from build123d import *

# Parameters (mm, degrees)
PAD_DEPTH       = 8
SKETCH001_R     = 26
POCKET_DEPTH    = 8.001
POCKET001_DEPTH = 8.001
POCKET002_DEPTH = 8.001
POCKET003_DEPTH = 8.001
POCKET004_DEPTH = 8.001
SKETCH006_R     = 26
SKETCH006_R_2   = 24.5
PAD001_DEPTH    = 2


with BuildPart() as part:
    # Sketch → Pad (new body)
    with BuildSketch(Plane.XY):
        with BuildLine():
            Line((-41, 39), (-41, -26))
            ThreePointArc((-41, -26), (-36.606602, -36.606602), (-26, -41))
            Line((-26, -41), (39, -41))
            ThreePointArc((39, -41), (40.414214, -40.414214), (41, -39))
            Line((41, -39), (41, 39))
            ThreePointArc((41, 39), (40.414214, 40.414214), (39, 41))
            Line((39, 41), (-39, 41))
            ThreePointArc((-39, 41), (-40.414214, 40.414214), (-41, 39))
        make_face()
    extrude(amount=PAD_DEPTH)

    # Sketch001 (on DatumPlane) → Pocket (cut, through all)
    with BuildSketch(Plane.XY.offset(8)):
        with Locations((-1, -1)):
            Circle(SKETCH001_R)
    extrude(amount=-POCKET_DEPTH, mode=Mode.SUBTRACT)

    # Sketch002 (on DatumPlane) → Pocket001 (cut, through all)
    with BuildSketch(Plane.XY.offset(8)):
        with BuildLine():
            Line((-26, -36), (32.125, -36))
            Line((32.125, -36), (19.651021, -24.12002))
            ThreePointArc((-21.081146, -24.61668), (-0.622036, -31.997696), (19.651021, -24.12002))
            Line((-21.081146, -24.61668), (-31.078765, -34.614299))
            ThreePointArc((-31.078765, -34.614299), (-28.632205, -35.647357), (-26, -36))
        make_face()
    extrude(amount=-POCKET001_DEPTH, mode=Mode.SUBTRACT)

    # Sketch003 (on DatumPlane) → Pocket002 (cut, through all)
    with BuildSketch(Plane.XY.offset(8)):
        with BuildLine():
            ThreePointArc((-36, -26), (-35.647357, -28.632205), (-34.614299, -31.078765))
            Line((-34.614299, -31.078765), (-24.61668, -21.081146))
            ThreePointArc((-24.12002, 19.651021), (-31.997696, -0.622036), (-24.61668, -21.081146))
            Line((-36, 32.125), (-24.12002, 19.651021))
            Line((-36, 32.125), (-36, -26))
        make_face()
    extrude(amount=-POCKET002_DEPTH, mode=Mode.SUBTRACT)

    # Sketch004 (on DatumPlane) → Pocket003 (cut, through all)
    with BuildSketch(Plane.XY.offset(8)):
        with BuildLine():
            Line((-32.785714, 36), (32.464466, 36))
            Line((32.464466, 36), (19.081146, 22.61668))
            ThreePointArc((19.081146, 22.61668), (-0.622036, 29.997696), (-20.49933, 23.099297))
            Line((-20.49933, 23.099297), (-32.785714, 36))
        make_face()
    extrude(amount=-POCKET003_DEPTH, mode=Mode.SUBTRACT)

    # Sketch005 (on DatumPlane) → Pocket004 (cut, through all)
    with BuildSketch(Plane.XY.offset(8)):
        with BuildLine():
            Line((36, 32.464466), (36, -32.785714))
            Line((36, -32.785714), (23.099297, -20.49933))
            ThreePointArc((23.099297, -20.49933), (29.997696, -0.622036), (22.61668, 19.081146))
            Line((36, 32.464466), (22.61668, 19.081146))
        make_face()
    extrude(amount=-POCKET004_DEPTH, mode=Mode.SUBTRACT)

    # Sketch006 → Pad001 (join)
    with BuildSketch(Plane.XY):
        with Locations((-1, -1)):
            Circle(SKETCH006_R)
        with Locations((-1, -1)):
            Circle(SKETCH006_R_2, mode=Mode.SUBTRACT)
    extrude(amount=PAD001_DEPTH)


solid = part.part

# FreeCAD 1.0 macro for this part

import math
import FreeCAD as App
import Part
import Sketcher

V = App.Vector
Q = App.Units.Quantity

doc = App.newDocument("Part")
params = doc.addObject("Spreadsheet::Sheet", "Params")
for row, (alias, value) in enumerate([
    ("sketch1_radius", "14.999999 mm"),
    ("sketch1_radius2", "1.999999 mm"),
    ("sketch1_width", "65 mm"),
    ("pad1_length", "8 mm"),
    ("sketch2_diameter", "52 mm"),
    ("sketch3_radius", "30.999999 mm"),
    ("sketch3_radius2", "10.000001 mm"),
    ("sketch4_radius", "10.000001 mm"),
    ("sketch4_radius2", "30.999999 mm"),
    ("sketch5_radius", "30.999999 mm"),
    ("sketch6_radius", "30.999999 mm"),
    ("sketch7_diameter", "52 mm"),
    ("sketch7_diameter2", "49 mm"),
    ("pad2_length", "2 mm"),
], start=1):
    params.set(f"A{row}", alias)
    params.set(f"B{row}", "=" + value)
    params.setAlias(f"B{row}", alias)

body = doc.addObject("PartDesign::Body", "Body")

# Sketch on XY plane
sketch1 = body.newObject("Sketcher::SketchObject", "Sketch")
sketch1.AttachmentSupport = (doc.getObject("XY_Plane"), [""])
sketch1.MapMode = "FlatFace"
sketch1.addGeometry(Part.LineSegment(V(-41, 39, 0), V(-41, -26, 0)), False)
sketch1.addGeometry(Part.ArcOfCircle(Part.Circle(V(-26, -26, 0), V(0, 0, 1), 15), math.radians(180), math.radians(270)), False)
sketch1.addGeometry(Part.LineSegment(V(-26, -41, 0), V(39, -41, 0)), False)
sketch1.addGeometry(Part.ArcOfCircle(Part.Circle(V(39, -39, 0), V(0, 0, 1), 2), math.radians(-90), math.radians(0)), False)
sketch1.addGeometry(Part.LineSegment(V(41, -39, 0), V(41, 39, 0)), False)
sketch1.addGeometry(Part.ArcOfCircle(Part.Circle(V(39, 39, 0), V(0, 0, 1), 2), math.radians(0), math.radians(90)), False)
sketch1.addGeometry(Part.LineSegment(V(39, 41, 0), V(-39, 41, 0)), False)
sketch1.addGeometry(Part.ArcOfCircle(Part.Circle(V(-39, 39, 0), V(0, 0, 1), 2), math.radians(90), math.radians(180)), False)
sketch1.addConstraint(Sketcher.Constraint("Tangent", 0, 2, 1, 1))
sketch1.addConstraint(Sketcher.Constraint("Tangent", 1, 2, 2, 1))
sketch1.addConstraint(Sketcher.Constraint("Tangent", 2, 2, 3, 1))
sketch1.addConstraint(Sketcher.Constraint("Tangent", 3, 2, 4, 1))
sketch1.addConstraint(Sketcher.Constraint("Tangent", 4, 2, 5, 1))
sketch1.addConstraint(Sketcher.Constraint("Tangent", 5, 2, 6, 1))
sketch1.addConstraint(Sketcher.Constraint("Tangent", 6, 2, 7, 1))
sketch1.addConstraint(Sketcher.Constraint("Tangent", 7, 2, 0, 1))
sketch1.addConstraint(Sketcher.Constraint("Vertical", 0))
sketch1.addConstraint(Sketcher.Constraint("Horizontal", 2))
sketch1.addConstraint(Sketcher.Constraint("Vertical", 4))
sketch1.addConstraint(Sketcher.Constraint("Horizontal", 6))
sketch1.addConstraint(Sketcher.Constraint("Equal", 3, 5))
sketch1.addConstraint(Sketcher.Constraint("Equal", 5, 7))
sketch1.addConstraint(Sketcher.Constraint("Symmetric", 3, 3, 7, 3, -1, 1))
sketch1.addConstraint(Sketcher.Constraint("Equal", 2, 0))
sketch1.addConstraint(Sketcher.Constraint("Radius", 1, Q("14.999999 mm")))
sketch1.addConstraint(Sketcher.Constraint("Radius", 3, Q("1.999999 mm")))
sketch1.addConstraint(Sketcher.Constraint("DistanceX", 2, 1, 2, 2, Q("65 mm")))
sketch1.setExpression("Constraints[16]", "Params.sketch1_radius")
sketch1.setExpression("Constraints[17]", "Params.sketch1_radius2")
sketch1.setExpression("Constraints[18]", "Params.sketch1_width")
pad1 = body.newObject("PartDesign::Pad", "Pad")
pad1.Profile = sketch1
pad1.setExpression("Length", "Params.pad1_length")

# Sketch on XY plane
sketch2 = body.newObject("Sketcher::SketchObject", "Sketch001")
sketch2.AttachmentSupport = (doc.getObject("XY_Plane"), [""])
sketch2.MapMode = "FlatFace"
sketch2.AttachmentOffset = App.Placement(V(0, 0, 8), App.Rotation())
sketch2.addGeometry(Part.Circle(V(-1, -1, 0), V(0, 0, 1), 26), False)
sketch2.addConstraint(Sketcher.Constraint("Diameter", 0, Q("52 mm")))
sketch2.addConstraint(Sketcher.Constraint("DistanceX", 0, 3, -1, 1, Q("1 mm")))
sketch2.addConstraint(Sketcher.Constraint("DistanceY", 0, 3, -1, 1, Q("1 mm")))
sketch2.setExpression("Constraints[0]", "Params.sketch2_diameter")
pocket1 = body.newObject("PartDesign::Pocket", "Pocket")
pocket1.Profile = sketch2
pocket1.Type = "ThroughAll"

# Sketch on XY plane
sketch3 = body.newObject("Sketcher::SketchObject", "Sketch002")
sketch3.AttachmentSupport = (doc.getObject("XY_Plane"), [""])
sketch3.MapMode = "FlatFace"
sketch3.AttachmentOffset = App.Placement(V(0, 0, 8), App.Rotation())
sketch3.addGeometry(Part.LineSegment(V(-26, -36, 0), V(32, -36, 0)), False)
sketch3.addGeometry(Part.LineSegment(V(32, -36, 0), V(20, -24, 0)), False)
sketch3.addGeometry(Part.ArcOfCircle(Part.Circle(V(-1, -1, 0), V(0, 0, 1), 31), math.radians(-130), math.radians(-48)), False)
sketch3.addGeometry(Part.LineSegment(V(-21, -25, 0), V(-31, -35, 0)), False)
sketch3.addGeometry(Part.ArcOfCircle(Part.Circle(V(-26, -26, 0), V(0, 0, 1), 10), math.radians(-121), math.radians(-90)), False)
sketch3.addConstraint(Sketcher.Constraint("Coincident", 0, 2, 1, 1))
sketch3.addConstraint(Sketcher.Constraint("Coincident", 1, 2, 2, 2))
sketch3.addConstraint(Sketcher.Constraint("Coincident", 2, 1, 3, 1))
sketch3.addConstraint(Sketcher.Constraint("Coincident", 3, 2, 4, 1))
sketch3.addConstraint(Sketcher.Constraint("Tangent", 4, 2, 0, 1))
sketch3.addConstraint(Sketcher.Constraint("Horizontal", 0))
sketch3.addConstraint(Sketcher.Constraint("Radius", 2, Q("30.999999 mm")))
sketch3.addConstraint(Sketcher.Constraint("Radius", 4, Q("10.000001 mm")))
sketch3.addConstraint(Sketcher.Constraint("Angle", 3, Q("-135 deg")))
sketch3.addConstraint(Sketcher.Constraint("DistanceX", 2, 3, -1, 1, Q("1 mm")))
sketch3.addConstraint(Sketcher.Constraint("DistanceY", 2, 3, -1, 1, Q("1.000001 mm")))
sketch3.addConstraint(Sketcher.Constraint("DistanceX", 4, 3, -1, 1, Q("26 mm")))
sketch3.addConstraint(Sketcher.Constraint("DistanceY", 4, 3, -1, 1, Q("25.999999 mm")))
sketch3.addConstraint(Sketcher.Constraint("DistanceX", 0, 1, 0, 2, Q("58.125 mm")))
sketch3.addConstraint(Sketcher.Constraint("DistanceY", 3, 2, -1, 1, Q("34.614299 mm")))
sketch3.addConstraint(Sketcher.Constraint("Distance", 1, Q("17.225971 mm")))
sketch3.setExpression("Constraints[6]", "Params.sketch3_radius")
sketch3.setExpression("Constraints[7]", "Params.sketch3_radius2")
pocket2 = body.newObject("PartDesign::Pocket", "Pocket001")
pocket2.Profile = sketch3
pocket2.Type = "ThroughAll"

# Sketch on XY plane
sketch4 = body.newObject("Sketcher::SketchObject", "Sketch003")
sketch4.AttachmentSupport = (doc.getObject("XY_Plane"), [""])
sketch4.MapMode = "FlatFace"
sketch4.AttachmentOffset = App.Placement(V(0, 0, 8), App.Rotation())
sketch4.addGeometry(Part.ArcOfCircle(Part.Circle(V(-26, -26, 0), V(0, 0, 1), 10), math.radians(-180), math.radians(-149)), False)
sketch4.addGeometry(Part.LineSegment(V(-35, -31, 0), V(-25, -21, 0)), False)
sketch4.addGeometry(Part.ArcOfCircle(Part.Circle(V(-1, -1, 0), V(0, 0, 1), 31), math.radians(138), math.radians(220)), False)
sketch4.addGeometry(Part.LineSegment(V(-24, 20, 0), V(-36, 32, 0)), False)
sketch4.addGeometry(Part.LineSegment(V(-36, 32, 0), V(-36, -26, 0)), False)
sketch4.addConstraint(Sketcher.Constraint("Coincident", 0, 2, 1, 1))
sketch4.addConstraint(Sketcher.Constraint("Coincident", 1, 2, 2, 2))
sketch4.addConstraint(Sketcher.Constraint("Coincident", 2, 1, 3, 1))
sketch4.addConstraint(Sketcher.Constraint("Coincident", 3, 2, 4, 1))
sketch4.addConstraint(Sketcher.Constraint("Tangent", 4, 2, 0, 1))
sketch4.addConstraint(Sketcher.Constraint("Vertical", 4))
sketch4.addConstraint(Sketcher.Constraint("Radius", 0, Q("10.000001 mm")))
sketch4.addConstraint(Sketcher.Constraint("Radius", 2, Q("30.999999 mm")))
sketch4.addConstraint(Sketcher.Constraint("Angle", 1, Q("45 deg")))
sketch4.addConstraint(Sketcher.Constraint("DistanceX", 0, 3, -1, 1, Q("25.999999 mm")))
sketch4.addConstraint(Sketcher.Constraint("DistanceY", 0, 3, -1, 1, Q("26 mm")))
sketch4.addConstraint(Sketcher.Constraint("DistanceX", 2, 3, -1, 1, Q("1.000001 mm")))
sketch4.addConstraint(Sketcher.Constraint("DistanceY", 2, 3, -1, 1, Q("1 mm")))
sketch4.addConstraint(Sketcher.Constraint("DistanceY", 4, 2, 4, 1, Q("58.125 mm")))
sketch4.addConstraint(Sketcher.Constraint("DistanceX", 0, 2, -1, 1, Q("34.614299 mm")))
sketch4.addConstraint(Sketcher.Constraint("Distance", 3, Q("17.225971 mm")))
sketch4.setExpression("Constraints[6]", "Params.sketch4_radius")
sketch4.setExpression("Constraints[7]", "Params.sketch4_radius2")
pocket3 = body.newObject("PartDesign::Pocket", "Pocket002")
pocket3.Profile = sketch4
pocket3.Type = "ThroughAll"

# Sketch on XY plane
sketch5 = body.newObject("Sketcher::SketchObject", "Sketch004")
sketch5.AttachmentSupport = (doc.getObject("XY_Plane"), [""])
sketch5.MapMode = "FlatFace"
sketch5.AttachmentOffset = App.Placement(V(0, 0, 8), App.Rotation())
sketch5.addGeometry(Part.LineSegment(V(32, 36, 0), V(-33, 36, 0)), False)
sketch5.addGeometry(Part.LineSegment(V(-33, 36, 0), V(-20, 23, 0)), False)
sketch5.addGeometry(Part.ArcOfCircle(Part.Circle(V(-1, -1, 0), V(0, 0, 1), 31), math.radians(50), math.radians(129)), False)
sketch5.addGeometry(Part.LineSegment(V(19, 23, 0), V(32, 36, 0)), False)
sketch5.addConstraint(Sketcher.Constraint("Coincident", 0, 2, 1, 1))
sketch5.addConstraint(Sketcher.Constraint("Coincident", 1, 2, 2, 2))
sketch5.addConstraint(Sketcher.Constraint("Coincident", 2, 1, 3, 1))
sketch5.addConstraint(Sketcher.Constraint("Coincident", 3, 2, 0, 1))
sketch5.addConstraint(Sketcher.Constraint("Horizontal", 0))
sketch5.addConstraint(Sketcher.Constraint("Radius", 2, Q("30.999999 mm")))
sketch5.addConstraint(Sketcher.Constraint("Angle", 3, Q("45 deg")))
sketch5.addConstraint(Sketcher.Constraint("DistanceX", 2, 3, -1, 1, Q("1 mm")))
sketch5.addConstraint(Sketcher.Constraint("DistanceY", 2, 3, -1, 1, Q("0.999998 mm")))
sketch5.addConstraint(Sketcher.Constraint("DistanceY", -1, 1, 0, 2, Q("36 mm")))
sketch5.addConstraint(Sketcher.Constraint("DistanceX", 0, 2, 0, 1, Q("65.25018 mm")))
sketch5.addConstraint(Sketcher.Constraint("DistanceX", 1, 2, -1, 1, Q("20.49933 mm")))
sketch5.addConstraint(Sketcher.Constraint("DistanceY", -1, 1, 2, 1, Q("22.61668 mm")))
sketch5.setExpression("Constraints[5]", "Params.sketch5_radius")
pocket4 = body.newObject("PartDesign::Pocket", "Pocket003")
pocket4.Profile = sketch5
pocket4.Type = "ThroughAll"

# Sketch on XY plane
sketch6 = body.newObject("Sketcher::SketchObject", "Sketch005")
sketch6.AttachmentSupport = (doc.getObject("XY_Plane"), [""])
sketch6.MapMode = "FlatFace"
sketch6.AttachmentOffset = App.Placement(V(0, 0, 8), App.Rotation())
sketch6.addGeometry(Part.LineSegment(V(36, -33, 0), V(36, 32, 0)), False)
sketch6.addGeometry(Part.LineSegment(V(36, 32, 0), V(23, 19, 0)), False)
sketch6.addGeometry(Part.ArcOfCircle(Part.Circle(V(-1, -1, 0), V(0, 0, 1), 31), math.radians(-39), math.radians(40)), False)
sketch6.addGeometry(Part.LineSegment(V(23, -20, 0), V(36, -33, 0)), False)
sketch6.addConstraint(Sketcher.Constraint("Coincident", 0, 2, 1, 1))
sketch6.addConstraint(Sketcher.Constraint("Coincident", 1, 2, 2, 2))
sketch6.addConstraint(Sketcher.Constraint("Coincident", 2, 1, 3, 1))
sketch6.addConstraint(Sketcher.Constraint("Coincident", 3, 2, 0, 1))
sketch6.addConstraint(Sketcher.Constraint("Vertical", 0))
sketch6.addConstraint(Sketcher.Constraint("Radius", 2, Q("30.999999 mm")))
sketch6.addConstraint(Sketcher.Constraint("Angle", 1, Q("-135 deg")))
sketch6.addConstraint(Sketcher.Constraint("DistanceX", 2, 3, -1, 1, Q("0.999998 mm")))
sketch6.addConstraint(Sketcher.Constraint("DistanceY", 2, 3, -1, 1, Q("1 mm")))
sketch6.addConstraint(Sketcher.Constraint("DistanceX", -1, 1, 0, 2, Q("36 mm")))
sketch6.addConstraint(Sketcher.Constraint("DistanceY", 0, 1, 0, 2, Q("65.25018 mm")))
sketch6.addConstraint(Sketcher.Constraint("DistanceX", -1, 1, 1, 2, Q("22.61668 mm")))
sketch6.addConstraint(Sketcher.Constraint("DistanceY", 2, 1, -1, 1, Q("20.49933 mm")))
sketch6.setExpression("Constraints[5]", "Params.sketch6_radius")
pocket5 = body.newObject("PartDesign::Pocket", "Pocket004")
pocket5.Profile = sketch6
pocket5.Type = "ThroughAll"

# Sketch on XY plane
sketch7 = body.newObject("Sketcher::SketchObject", "Sketch006")
sketch7.AttachmentSupport = (doc.getObject("XY_Plane"), [""])
sketch7.MapMode = "FlatFace"
sketch7.addGeometry(Part.Circle(V(-1, -1, 0), V(0, 0, 1), 26), False)
sketch7.addGeometry(Part.Circle(V(-1, -1, 0), V(0, 0, 1), 24), False)
sketch7.addConstraint(Sketcher.Constraint("Coincident", 1, 3, 0, 3))
sketch7.addConstraint(Sketcher.Constraint("Diameter", 0, Q("52 mm")))
sketch7.addConstraint(Sketcher.Constraint("Diameter", 1, Q("49 mm")))
sketch7.addConstraint(Sketcher.Constraint("DistanceX", 0, 3, -1, 1, Q("1 mm")))
sketch7.addConstraint(Sketcher.Constraint("DistanceY", 0, 3, -1, 1, Q("1 mm")))
sketch7.setExpression("Constraints[1]", "Params.sketch7_diameter")
sketch7.setExpression("Constraints[2]", "Params.sketch7_diameter2")
pad2 = body.newObject("PartDesign::Pad", "Pad001")
pad2.Profile = sketch7
pad2.setExpression("Length", "Params.pad2_length")

doc.recompute()
